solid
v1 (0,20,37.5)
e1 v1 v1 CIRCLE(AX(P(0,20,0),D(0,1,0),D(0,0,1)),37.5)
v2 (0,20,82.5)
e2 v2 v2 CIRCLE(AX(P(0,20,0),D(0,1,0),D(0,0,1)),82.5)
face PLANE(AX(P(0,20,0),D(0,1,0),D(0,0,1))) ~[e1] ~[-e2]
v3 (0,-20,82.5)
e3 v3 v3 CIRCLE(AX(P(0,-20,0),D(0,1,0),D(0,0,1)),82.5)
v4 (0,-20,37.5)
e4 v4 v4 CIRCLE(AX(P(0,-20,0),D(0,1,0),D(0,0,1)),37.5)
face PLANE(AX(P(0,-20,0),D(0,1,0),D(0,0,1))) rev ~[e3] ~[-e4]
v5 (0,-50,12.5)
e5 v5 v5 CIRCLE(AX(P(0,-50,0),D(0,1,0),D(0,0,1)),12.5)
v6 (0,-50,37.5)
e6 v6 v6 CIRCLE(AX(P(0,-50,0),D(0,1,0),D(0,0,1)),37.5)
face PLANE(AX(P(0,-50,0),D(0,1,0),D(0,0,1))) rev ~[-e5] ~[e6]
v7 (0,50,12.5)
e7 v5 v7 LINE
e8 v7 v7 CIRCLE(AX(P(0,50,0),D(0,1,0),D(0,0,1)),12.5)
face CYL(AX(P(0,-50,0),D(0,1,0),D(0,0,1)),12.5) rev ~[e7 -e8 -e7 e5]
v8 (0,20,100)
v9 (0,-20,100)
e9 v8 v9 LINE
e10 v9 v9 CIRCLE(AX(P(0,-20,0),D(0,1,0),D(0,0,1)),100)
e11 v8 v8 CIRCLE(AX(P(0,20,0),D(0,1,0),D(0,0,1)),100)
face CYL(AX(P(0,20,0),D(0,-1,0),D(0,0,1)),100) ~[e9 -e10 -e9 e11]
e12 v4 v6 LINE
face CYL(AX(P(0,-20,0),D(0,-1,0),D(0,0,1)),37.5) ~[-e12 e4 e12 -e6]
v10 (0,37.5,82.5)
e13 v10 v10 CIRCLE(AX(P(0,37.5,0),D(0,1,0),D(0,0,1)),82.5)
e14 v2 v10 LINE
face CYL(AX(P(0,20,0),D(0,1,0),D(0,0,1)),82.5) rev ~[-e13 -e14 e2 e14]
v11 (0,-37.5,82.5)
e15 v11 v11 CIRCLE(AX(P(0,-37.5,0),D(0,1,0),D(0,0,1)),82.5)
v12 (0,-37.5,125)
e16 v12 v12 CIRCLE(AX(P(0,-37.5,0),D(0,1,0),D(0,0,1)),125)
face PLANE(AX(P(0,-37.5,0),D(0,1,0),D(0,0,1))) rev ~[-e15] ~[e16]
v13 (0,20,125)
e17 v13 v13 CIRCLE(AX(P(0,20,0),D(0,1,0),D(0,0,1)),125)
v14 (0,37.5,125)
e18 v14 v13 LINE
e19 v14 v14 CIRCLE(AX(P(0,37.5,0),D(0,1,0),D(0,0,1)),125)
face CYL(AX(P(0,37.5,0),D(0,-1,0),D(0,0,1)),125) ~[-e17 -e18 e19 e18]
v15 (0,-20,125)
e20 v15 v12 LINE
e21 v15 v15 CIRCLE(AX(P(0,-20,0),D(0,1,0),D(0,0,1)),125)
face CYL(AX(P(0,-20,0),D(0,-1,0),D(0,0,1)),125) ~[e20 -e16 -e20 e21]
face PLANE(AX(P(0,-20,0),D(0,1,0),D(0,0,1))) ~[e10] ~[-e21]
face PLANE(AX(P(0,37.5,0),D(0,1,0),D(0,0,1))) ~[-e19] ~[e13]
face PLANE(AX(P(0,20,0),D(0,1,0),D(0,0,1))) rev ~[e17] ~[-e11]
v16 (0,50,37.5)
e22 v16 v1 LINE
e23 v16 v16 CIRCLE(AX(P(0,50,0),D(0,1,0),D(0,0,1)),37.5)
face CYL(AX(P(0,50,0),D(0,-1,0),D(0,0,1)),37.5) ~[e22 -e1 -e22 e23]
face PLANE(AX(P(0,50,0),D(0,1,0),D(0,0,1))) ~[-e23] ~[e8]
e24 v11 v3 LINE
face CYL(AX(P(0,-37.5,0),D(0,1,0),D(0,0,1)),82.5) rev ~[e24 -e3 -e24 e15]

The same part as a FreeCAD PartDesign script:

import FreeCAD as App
import Part
import Sketcher

V = App.Vector
Q = App.Units.Quantity


def add_polygon(sketch, points):
    """Adds a closed chain of lines whose ends are joined by coincident constraints."""
    first, n = sketch.GeometryCount, len(points)
    for a, b in zip(points, points[1:] + points[:1]):
        sketch.addGeometry(Part.LineSegment(App.Vector(*a, 0), App.Vector(*b, 0)), False)
    for i in range(n):
        sketch.addConstraint(Sketcher.Constraint("Coincident", first + i, 2, first + (i + 1) % n, 1))

doc = App.newDocument("Part")
body = doc.addObject("PartDesign::Body", "Body")

# Sketch on YZ plane
sketch1 = body.newObject("Sketcher::SketchObject", "Sketch")
sketch1.AttachmentSupport = (doc.getObject("YZ_Plane"), [""])
sketch1.MapMode = "FlatFace"
add_polygon(sketch1, [(20, 100), (-20, 100), (-20, 125), (-38, 125), (-38, 82), (-20, 82), (-20, 38), (-50, 38), (-50, 12), (50, 12), (50, 38), (20, 38), (20, 82), (38, 82), (38, 125), (20, 125)])  # lines 0-15
sketch1.addConstraint(Sketcher.Constraint("Horizontal", 0))
sketch1.addConstraint(Sketcher.Constraint("Vertical", 1))
sketch1.addConstraint(Sketcher.Constraint("Horizontal", 2))
sketch1.addConstraint(Sketcher.Constraint("Vertical", 3))
sketch1.addConstraint(Sketcher.Constraint("Horizontal", 4))
sketch1.addConstraint(Sketcher.Constraint("Vertical", 5))
sketch1.addConstraint(Sketcher.Constraint("Horizontal", 6))
sketch1.addConstraint(Sketcher.Constraint("Vertical", 7))
sketch1.addConstraint(Sketcher.Constraint("Horizontal", 8))
sketch1.addConstraint(Sketcher.Constraint("Vertical", 9))
sketch1.addConstraint(Sketcher.Constraint("Horizontal", 10))
sketch1.addConstraint(Sketcher.Constraint("Vertical", 11))
sketch1.addConstraint(Sketcher.Constraint("Horizontal", 12))
sketch1.addConstraint(Sketcher.Constraint("Vertical", 13))
sketch1.addConstraint(Sketcher.Constraint("Horizontal", 14))
sketch1.addConstraint(Sketcher.Constraint("Vertical", 15))
sketch1.addConstraint(Sketcher.Constraint("Symmetric", 6, 2, 9, 2, -2))
sketch1.addConstraint(Sketcher.Constraint("Symmetric", 4, 2, 11, 2, -2))
sketch1.addConstraint(Sketcher.Constraint("Symmetric", 2, 2, 13, 2, -2))
sketch1.addConstraint(Sketcher.Constraint("Vertical", 1, 2, 4, 2))
sketch1.addConstraint(Sketcher.Constraint("Vertical", 11, 2, 14, 2))
sketch1.addConstraint(Sketcher.Constraint("Equal", 1, 7))
sketch1.addConstraint(Sketcher.Constraint("DistanceX", 0, 2, 0, 1, Q("40 mm")))
sketch1.addConstraint(Sketcher.Constraint("DistanceX", 6, 2, 6, 1, Q("30 mm")))
sketch1.addConstraint(Sketcher.Constraint("DistanceY", 1, 1, 1, 2, Q("25 mm")))
sketch1.addConstraint(Sketcher.Constraint("DistanceY", 5, 2, 5, 1, Q("45 mm")))
sketch1.addConstraint(Sketcher.Constraint("DistanceX", 2, 2, 2, 1, Q("17.5 mm")))
sketch1.addConstraint(Sketcher.Constraint("DistanceY", 3, 2, 3, 1, Q("42.5 mm")))
sketch1.addConstraint(Sketcher.Constraint("DistanceY", -1, 1, 0, 2, Q("100 mm")))
revolution = body.newObject("PartDesign::Revolution", "Revolution")
revolution.Profile = sketch1
revolution.ReferenceAxis = (sketch1, ["H_Axis"])
revolution.Angle = 360

doc.recompute()
